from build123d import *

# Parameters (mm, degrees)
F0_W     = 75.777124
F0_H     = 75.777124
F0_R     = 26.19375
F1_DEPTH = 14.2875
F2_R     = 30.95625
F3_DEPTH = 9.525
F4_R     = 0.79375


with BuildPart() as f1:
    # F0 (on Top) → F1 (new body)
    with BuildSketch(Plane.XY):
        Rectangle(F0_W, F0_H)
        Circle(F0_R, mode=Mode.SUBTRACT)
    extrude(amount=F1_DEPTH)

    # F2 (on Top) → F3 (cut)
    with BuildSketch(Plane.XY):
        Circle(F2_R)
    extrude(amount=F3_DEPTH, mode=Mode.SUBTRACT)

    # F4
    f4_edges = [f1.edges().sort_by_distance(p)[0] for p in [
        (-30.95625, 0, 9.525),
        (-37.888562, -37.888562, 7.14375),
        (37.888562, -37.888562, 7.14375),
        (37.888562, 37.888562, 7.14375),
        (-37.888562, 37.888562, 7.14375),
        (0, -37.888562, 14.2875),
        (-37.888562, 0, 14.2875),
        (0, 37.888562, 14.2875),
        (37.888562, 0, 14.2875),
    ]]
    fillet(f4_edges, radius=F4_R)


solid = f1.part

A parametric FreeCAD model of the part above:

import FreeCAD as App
import Part
import Sketcher
from FreeCAD import Vector
Q = App.Units.Quantity


def edges_at(feature, points):
    """Names of the edges that pass closest to the given points."""
    edges = feature.Shape.Edges
    near = lambda p: min(range(len(edges)), key=lambda i: edges[i].distToShape(Part.Vertex(*p))[0])
    return sorted({f"Edge{near(p) + 1}" for p in points})

doc = App.newDocument("Part")
params = doc.addObject("Spreadsheet::Sheet", "Params")
for row, (alias, value) in enumerate([
    ("sketch1_diameter", "2.0625 in"),
    ("pad1_length", "0.5625 in"),
    ("sketch2_diameter", "2.4375 in"),
    ("pocket1_length", "0.375 in"),
    ("fillet_radius", "0.03125 in"),
], start=1):
    params.set(f"A{row}", alias)
    params.set(f"B{row}", "=" + value)
    params.setAlias(f"B{row}", alias)

body = doc.addObject("PartDesign::Body", "Body")

# Sketch on XY plane
sketch1 = body.newObject("Sketcher::SketchObject", "Sketch")
sketch1.AttachmentSupport = (doc.getObject("XY_Plane"), [""])
sketch1.MapMode = "FlatFace"
sketch1.addGeometry(Part.LineSegment(Vector(-38, 38, 0), Vector(-38, -38, 0)), False)
sketch1.addGeometry(Part.LineSegment(Vector(-38, -38, 0), Vector(38, -38, 0)), False)
sketch1.addGeometry(Part.LineSegment(Vector(38, -38, 0), Vector(38, 38, 0)), False)
sketch1.addGeometry(Part.LineSegment(Vector(38, 38, 0), Vector(-38, 38, 0)), False)
sketch1.addGeometry(Part.Circle(Vector(0, 0, 0), Vector(0, 0, 1), 26), False)
sketch1.addConstraint(Sketcher.Constraint("Coincident", 0, 2, 1, 1))
sketch1.addConstraint(Sketcher.Constraint("Coincident", 1, 2, 2, 1))
sketch1.addConstraint(Sketcher.Constraint("Coincident", 2, 2, 3, 1))
sketch1.addConstraint(Sketcher.Constraint("Coincident", 3, 2, 0, 1))
sketch1.addConstraint(Sketcher.Constraint("Vertical", 0))
sketch1.addConstraint(Sketcher.Constraint("Horizontal", 1))
sketch1.addConstraint(Sketcher.Constraint("Vertical", 2))
sketch1.addConstraint(Sketcher.Constraint("Horizontal", 3))
sketch1.addConstraint(Sketcher.Constraint("Coincident", 4, 3, -1, 1))
sketch1.addConstraint(Sketcher.Constraint("Symmetric", 0, 2, 2, 2, -1, 1))
sketch1.addConstraint(Sketcher.Constraint("Equal", 3, 0))
sketch1.addConstraint(Sketcher.Constraint("Diameter", 4, Q("2.0625 in")))
sketch1.addConstraint(Sketcher.Constraint("DistanceX", 1, 1, 1, 2, Q("75.777124 mm")))
sketch1.setExpression("Constraints[11]", "Params.sketch1_diameter")
pad1 = body.newObject("PartDesign::Pad", "Pad")
pad1.Profile = sketch1
pad1.setExpression("Length", "Params.pad1_length")

# Sketch on XY plane
sketch2 = body.newObject("Sketcher::SketchObject", "Sketch001")
sketch2.AttachmentSupport = (doc.getObject("XY_Plane"), [""])
sketch2.MapMode = "FlatFace"
sketch2.addGeometry(Part.Circle(Vector(0, 0, 0), Vector(0, 0, 1), 31), False)
sketch2.addConstraint(Sketcher.Constraint("Coincident", 0, 3, -1, 1))
sketch2.addConstraint(Sketcher.Constraint("Diameter", 0, Q("2.4375 in")))
sketch2.setExpression("Constraints[1]", "Params.sketch2_diameter")
pocket1 = body.newObject("PartDesign::Pocket", "Pocket")
pocket1.Profile = sketch2
pocket1.setExpression("Length", "Params.pocket1_length")
pocket1.Reversed = True
doc.recompute()

fillet = body.newObject("PartDesign::Fillet", "Fillet")
fillet.Base = (pocket1, edges_at(pocket1, [
    (-30.956, 0, 9.525),
    (-37.889, -37.889, 7.144),
    (37.889, -37.889, 7.144),
    (37.889, 37.889, 7.144),
    (-37.889, 37.889, 7.144),
    (0, -37.889, 14.287),
    (-37.889, 0, 14.287),
    (0, 37.889, 14.287),
    (37.889, 0, 14.287),
]))
fillet.setExpression("Radius", "Params.fillet_radius")

doc.recompute()
